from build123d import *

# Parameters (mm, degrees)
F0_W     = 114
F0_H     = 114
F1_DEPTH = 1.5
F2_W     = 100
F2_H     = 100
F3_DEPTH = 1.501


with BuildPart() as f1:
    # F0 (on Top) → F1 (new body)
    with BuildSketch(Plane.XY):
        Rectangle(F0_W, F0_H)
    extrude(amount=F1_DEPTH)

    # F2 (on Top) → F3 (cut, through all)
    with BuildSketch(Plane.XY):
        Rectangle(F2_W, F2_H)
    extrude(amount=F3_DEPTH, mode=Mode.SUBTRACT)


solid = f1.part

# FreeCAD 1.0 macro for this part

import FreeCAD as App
import Part
import Sketcher
from FreeCAD import Vector


def add_polygon(sketch, points):
    """Adds a closed chain of lines whose ends are joined by coincident constraints."""
    first, n = sketch.GeometryCount, len(points)
    for a, b in zip(points, points[1:] + points[:1]):
        sketch.addGeometry(Part.LineSegment(App.Vector(*a, 0), App.Vector(*b, 0)), False)
    for i in range(n):
        sketch.addConstraint(Sketcher.Constraint("Coincident", first + i, 2, first + (i + 1) % n, 1))

doc = App.newDocument("Part")
body = doc.addObject("PartDesign::Body", "Body")

sketch1 = doc.addObject("Sketcher::SketchObject", "Sketch")
body.addObject(sketch1)
sketch1.AttachmentSupport = (doc.XY_Plane, [""])
sketch1.MapMode = "FlatFace"
add_polygon(sketch1, [(-57, 57), (-57, -57), (57, -57), (57, 57)])
sketch1.addConstraint([
    Sketcher.Constraint("Vertical", 0),
    Sketcher.Constraint("Horizontal", 1),
    Sketcher.Constraint("Vertical", 2),
    Sketcher.Constraint("Horizontal", 3),
    Sketcher.Constraint("Symmetric", 0, 2, 2, 2, -1, 1),
    Sketcher.Constraint("Equal", 3, 0),
    Sketcher.Constraint("DistanceX", 1, 1, 1, 2, 114.0),
])
pad1 = doc.addObject("PartDesign::Pad", "Pad")
body.addObject(pad1)
pad1.Profile = sketch1
pad1.Length = 1.5

sketch2 = doc.addObject("Sketcher::SketchObject", "Sketch001")
body.addObject(sketch2)
sketch2.AttachmentSupport = (doc.XY_Plane, [""])
sketch2.MapMode = "FlatFace"
add_polygon(sketch2, [(-50, 50), (-50, -50), (50, -50), (50, 50)])
sketch2.addConstraint([
    Sketcher.Constraint("Vertical", 0),
    Sketcher.Constraint("Horizontal", 1),
    Sketcher.Constraint("Vertical", 2),
    Sketcher.Constraint("Horizontal", 3),
    Sketcher.Constraint("Symmetric", 0, 2, 2, 2, -1, 1),
    Sketcher.Constraint("Equal", 3, 0),
    Sketcher.Constraint("DistanceX", 1, 1, 1, 2, 100.0),
])
pocket1 = doc.addObject("PartDesign::Pocket", "Pocket")
body.addObject(pocket1)
pocket1.Profile = sketch2
pocket1.Type = "ThroughAll"
pocket1.Reversed = True

doc.recompute()
